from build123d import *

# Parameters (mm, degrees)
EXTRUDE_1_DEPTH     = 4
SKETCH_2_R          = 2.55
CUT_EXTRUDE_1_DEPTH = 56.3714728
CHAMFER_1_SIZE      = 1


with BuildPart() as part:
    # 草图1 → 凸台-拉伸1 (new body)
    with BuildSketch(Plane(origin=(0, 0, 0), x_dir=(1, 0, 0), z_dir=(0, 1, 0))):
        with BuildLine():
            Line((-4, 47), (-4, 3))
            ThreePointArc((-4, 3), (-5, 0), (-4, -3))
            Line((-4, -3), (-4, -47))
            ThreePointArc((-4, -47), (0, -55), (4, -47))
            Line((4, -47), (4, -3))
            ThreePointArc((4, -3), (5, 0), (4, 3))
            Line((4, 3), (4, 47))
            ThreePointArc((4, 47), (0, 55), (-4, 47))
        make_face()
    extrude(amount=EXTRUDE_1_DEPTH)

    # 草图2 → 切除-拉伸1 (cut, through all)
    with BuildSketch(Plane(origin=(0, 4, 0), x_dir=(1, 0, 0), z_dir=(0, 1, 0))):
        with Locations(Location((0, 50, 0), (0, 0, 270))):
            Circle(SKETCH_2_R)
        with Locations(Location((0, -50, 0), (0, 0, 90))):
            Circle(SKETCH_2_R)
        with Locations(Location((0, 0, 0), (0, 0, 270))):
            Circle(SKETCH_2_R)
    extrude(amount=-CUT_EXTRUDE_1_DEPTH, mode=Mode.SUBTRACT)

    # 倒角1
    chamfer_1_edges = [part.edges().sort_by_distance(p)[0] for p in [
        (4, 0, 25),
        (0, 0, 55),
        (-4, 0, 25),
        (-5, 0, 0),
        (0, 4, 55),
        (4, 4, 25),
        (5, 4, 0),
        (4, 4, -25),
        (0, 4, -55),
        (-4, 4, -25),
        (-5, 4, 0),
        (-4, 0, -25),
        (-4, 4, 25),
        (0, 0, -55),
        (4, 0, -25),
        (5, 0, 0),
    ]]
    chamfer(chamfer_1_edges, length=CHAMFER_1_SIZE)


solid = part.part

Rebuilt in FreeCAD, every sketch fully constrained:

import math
import FreeCAD as App
import Part
import Sketcher
from FreeCAD import Vector


def edges_at(feature, points):
    """Names of the edges that pass closest to the given points."""
    edges = feature.Shape.Edges
    near = lambda p: min(range(len(edges)), key=lambda i: edges[i].distToShape(Part.Vertex(*p))[0])
    return sorted({f"Edge{near(p) + 1}" for p in points})

doc = App.newDocument("Part")
body = doc.addObject("PartDesign::Body", "Body")

sketch1 = doc.addObject("Sketcher::SketchObject", "Sketch")
body.addObject(sketch1)
sketch1.AttachmentSupport = (doc.XZ_Plane, [""])
sketch1.MapMode = "FlatFace"
sketch1.addGeometry([
    Part.LineSegment(Vector(-4, -47, 0), Vector(-4, -3, 0)),
    Part.ArcOfCircle(Part.Circle(Vector(0, 0, 0), Vector(0, 0, 1), 5), math.radians(143), math.radians(217)),
    Part.LineSegment(Vector(-4, 3, 0), Vector(-4, 47, 0)),
    Part.ArcOfCircle(Part.Circle(Vector(0, 50, 0), Vector(0, 0, 1), 5), math.radians(-37), math.radians(217)),
    Part.LineSegment(Vector(4, 47, 0), Vector(4, 3, 0)),
    Part.ArcOfCircle(Part.Circle(Vector(0, 0, 0), Vector(0, 0, 1), 5), math.radians(-37), math.radians(37)),
    Part.LineSegment(Vector(4, -3, 0), Vector(4, -47, 0)),
    Part.ArcOfCircle(Part.Circle(Vector(0, -50, 0), Vector(0, 0, 1), 5), math.radians(143), math.radians(397)),
], False)
sketch1.addConstraint([
    Sketcher.Constraint("Coincident", 0, 2, 1, 2),
    Sketcher.Constraint("Coincident", 1, 1, 2, 1),
    Sketcher.Constraint("Coincident", 2, 2, 3, 2),
    Sketcher.Constraint("Coincident", 3, 1, 4, 1),
    Sketcher.Constraint("Coincident", 4, 2, 5, 2),
    Sketcher.Constraint("Coincident", 5, 1, 6, 1),
    Sketcher.Constraint("Coincident", 6, 2, 7, 2),
    Sketcher.Constraint("Coincident", 7, 1, 0, 1),
    Sketcher.Constraint("Vertical", 0),
    Sketcher.Constraint("Vertical", 2),
    Sketcher.Constraint("Vertical", 4),
    Sketcher.Constraint("Vertical", 6),
    Sketcher.Constraint("Coincident", 1, 3, -1, 1),
    Sketcher.Constraint("Coincident", 5, 3, -1, 1),
    Sketcher.Constraint("Equal", 1, 3),
    Sketcher.Constraint("Equal", 3, 5),
    Sketcher.Constraint("Equal", 5, 7),
    Sketcher.Constraint("Symmetric", 3, 3, 7, 3, -1, 1),
    Sketcher.Constraint("Symmetric", 2, 2, 3, 1, -2),
    Sketcher.Constraint("Horizontal", 0, 2, 5, 1),
    Sketcher.Constraint("Vertical", 0, 2, 1, 1),
    Sketcher.Constraint("Radius", 1, 5.0),
    Sketcher.Constraint("DistanceY", 0, 1, 0, 2, 44.0),
    Sketcher.Constraint("DistanceY", -1, 1, 3, 3, 50.0),
])
pad1 = doc.addObject("PartDesign::Pad", "Pad")
body.addObject(pad1)
pad1.Profile = sketch1
pad1.Length = 4
pad1.Reversed = True

sketch2 = doc.addObject("Sketcher::SketchObject", "Sketch001")
body.addObject(sketch2)
sketch2.AttachmentSupport = (doc.XZ_Plane, [""])
sketch2.MapMode = "FlatFace"
sketch2.AttachmentOffset = App.Placement(Vector(0, 0, -4), App.Rotation())
sketch2.addGeometry([
    Part.Circle(Vector(0, -50, 0), Vector(0, 0, 1), 2.5),
    Part.Circle(Vector(0, 50, 0), Vector(0, 0, 1), 2.5),
    Part.Circle(Vector(0, 0, 0), Vector(0, 0, 1), 2.5),
], False)
sketch2.addConstraint([
    Sketcher.Constraint("Coincident", 2, 3, -1, 1),
    Sketcher.Constraint("Equal", 0, 1),
    Sketcher.Constraint("Equal", 1, 2),
    Sketcher.Constraint("Symmetric", 0, 3, 1, 3, -1, 1),
    Sketcher.Constraint("PointOnObject", 0, 3, -2),
    Sketcher.Constraint("Diameter", 0, 5.1),
    Sketcher.Constraint("DistanceY", 0, 3, -1, 1, 50.0),
])
pocket1 = doc.addObject("PartDesign::Pocket", "Pocket")
body.addObject(pocket1)
pocket1.Profile = sketch2
pocket1.Type = "ThroughAll"
pocket1.Reversed = True
doc.recompute()

chamfer = doc.addObject("PartDesign::Chamfer", "Chamfer")
body.addObject(chamfer)
chamfer.Base = (pocket1, edges_at(pocket1, [
    (4, 0, 25),
    (0, 0, 55),
    (-4, 0, 25),
    (-5, 0, 0),
    (0, 4, 55),
    (4, 4, 25),
    (5, 4, 0),
    (4, 4, -25),
    (0, 4, -55),
    (-4, 4, -25),
    (-5, 4, 0),
    (-4, 0, -25),
    (-4, 4, 25),
    (0, 0, -55),
    (4, 0, -25),
    (5, 0, 0),
]))
chamfer.Size = 1

doc.recompute()
